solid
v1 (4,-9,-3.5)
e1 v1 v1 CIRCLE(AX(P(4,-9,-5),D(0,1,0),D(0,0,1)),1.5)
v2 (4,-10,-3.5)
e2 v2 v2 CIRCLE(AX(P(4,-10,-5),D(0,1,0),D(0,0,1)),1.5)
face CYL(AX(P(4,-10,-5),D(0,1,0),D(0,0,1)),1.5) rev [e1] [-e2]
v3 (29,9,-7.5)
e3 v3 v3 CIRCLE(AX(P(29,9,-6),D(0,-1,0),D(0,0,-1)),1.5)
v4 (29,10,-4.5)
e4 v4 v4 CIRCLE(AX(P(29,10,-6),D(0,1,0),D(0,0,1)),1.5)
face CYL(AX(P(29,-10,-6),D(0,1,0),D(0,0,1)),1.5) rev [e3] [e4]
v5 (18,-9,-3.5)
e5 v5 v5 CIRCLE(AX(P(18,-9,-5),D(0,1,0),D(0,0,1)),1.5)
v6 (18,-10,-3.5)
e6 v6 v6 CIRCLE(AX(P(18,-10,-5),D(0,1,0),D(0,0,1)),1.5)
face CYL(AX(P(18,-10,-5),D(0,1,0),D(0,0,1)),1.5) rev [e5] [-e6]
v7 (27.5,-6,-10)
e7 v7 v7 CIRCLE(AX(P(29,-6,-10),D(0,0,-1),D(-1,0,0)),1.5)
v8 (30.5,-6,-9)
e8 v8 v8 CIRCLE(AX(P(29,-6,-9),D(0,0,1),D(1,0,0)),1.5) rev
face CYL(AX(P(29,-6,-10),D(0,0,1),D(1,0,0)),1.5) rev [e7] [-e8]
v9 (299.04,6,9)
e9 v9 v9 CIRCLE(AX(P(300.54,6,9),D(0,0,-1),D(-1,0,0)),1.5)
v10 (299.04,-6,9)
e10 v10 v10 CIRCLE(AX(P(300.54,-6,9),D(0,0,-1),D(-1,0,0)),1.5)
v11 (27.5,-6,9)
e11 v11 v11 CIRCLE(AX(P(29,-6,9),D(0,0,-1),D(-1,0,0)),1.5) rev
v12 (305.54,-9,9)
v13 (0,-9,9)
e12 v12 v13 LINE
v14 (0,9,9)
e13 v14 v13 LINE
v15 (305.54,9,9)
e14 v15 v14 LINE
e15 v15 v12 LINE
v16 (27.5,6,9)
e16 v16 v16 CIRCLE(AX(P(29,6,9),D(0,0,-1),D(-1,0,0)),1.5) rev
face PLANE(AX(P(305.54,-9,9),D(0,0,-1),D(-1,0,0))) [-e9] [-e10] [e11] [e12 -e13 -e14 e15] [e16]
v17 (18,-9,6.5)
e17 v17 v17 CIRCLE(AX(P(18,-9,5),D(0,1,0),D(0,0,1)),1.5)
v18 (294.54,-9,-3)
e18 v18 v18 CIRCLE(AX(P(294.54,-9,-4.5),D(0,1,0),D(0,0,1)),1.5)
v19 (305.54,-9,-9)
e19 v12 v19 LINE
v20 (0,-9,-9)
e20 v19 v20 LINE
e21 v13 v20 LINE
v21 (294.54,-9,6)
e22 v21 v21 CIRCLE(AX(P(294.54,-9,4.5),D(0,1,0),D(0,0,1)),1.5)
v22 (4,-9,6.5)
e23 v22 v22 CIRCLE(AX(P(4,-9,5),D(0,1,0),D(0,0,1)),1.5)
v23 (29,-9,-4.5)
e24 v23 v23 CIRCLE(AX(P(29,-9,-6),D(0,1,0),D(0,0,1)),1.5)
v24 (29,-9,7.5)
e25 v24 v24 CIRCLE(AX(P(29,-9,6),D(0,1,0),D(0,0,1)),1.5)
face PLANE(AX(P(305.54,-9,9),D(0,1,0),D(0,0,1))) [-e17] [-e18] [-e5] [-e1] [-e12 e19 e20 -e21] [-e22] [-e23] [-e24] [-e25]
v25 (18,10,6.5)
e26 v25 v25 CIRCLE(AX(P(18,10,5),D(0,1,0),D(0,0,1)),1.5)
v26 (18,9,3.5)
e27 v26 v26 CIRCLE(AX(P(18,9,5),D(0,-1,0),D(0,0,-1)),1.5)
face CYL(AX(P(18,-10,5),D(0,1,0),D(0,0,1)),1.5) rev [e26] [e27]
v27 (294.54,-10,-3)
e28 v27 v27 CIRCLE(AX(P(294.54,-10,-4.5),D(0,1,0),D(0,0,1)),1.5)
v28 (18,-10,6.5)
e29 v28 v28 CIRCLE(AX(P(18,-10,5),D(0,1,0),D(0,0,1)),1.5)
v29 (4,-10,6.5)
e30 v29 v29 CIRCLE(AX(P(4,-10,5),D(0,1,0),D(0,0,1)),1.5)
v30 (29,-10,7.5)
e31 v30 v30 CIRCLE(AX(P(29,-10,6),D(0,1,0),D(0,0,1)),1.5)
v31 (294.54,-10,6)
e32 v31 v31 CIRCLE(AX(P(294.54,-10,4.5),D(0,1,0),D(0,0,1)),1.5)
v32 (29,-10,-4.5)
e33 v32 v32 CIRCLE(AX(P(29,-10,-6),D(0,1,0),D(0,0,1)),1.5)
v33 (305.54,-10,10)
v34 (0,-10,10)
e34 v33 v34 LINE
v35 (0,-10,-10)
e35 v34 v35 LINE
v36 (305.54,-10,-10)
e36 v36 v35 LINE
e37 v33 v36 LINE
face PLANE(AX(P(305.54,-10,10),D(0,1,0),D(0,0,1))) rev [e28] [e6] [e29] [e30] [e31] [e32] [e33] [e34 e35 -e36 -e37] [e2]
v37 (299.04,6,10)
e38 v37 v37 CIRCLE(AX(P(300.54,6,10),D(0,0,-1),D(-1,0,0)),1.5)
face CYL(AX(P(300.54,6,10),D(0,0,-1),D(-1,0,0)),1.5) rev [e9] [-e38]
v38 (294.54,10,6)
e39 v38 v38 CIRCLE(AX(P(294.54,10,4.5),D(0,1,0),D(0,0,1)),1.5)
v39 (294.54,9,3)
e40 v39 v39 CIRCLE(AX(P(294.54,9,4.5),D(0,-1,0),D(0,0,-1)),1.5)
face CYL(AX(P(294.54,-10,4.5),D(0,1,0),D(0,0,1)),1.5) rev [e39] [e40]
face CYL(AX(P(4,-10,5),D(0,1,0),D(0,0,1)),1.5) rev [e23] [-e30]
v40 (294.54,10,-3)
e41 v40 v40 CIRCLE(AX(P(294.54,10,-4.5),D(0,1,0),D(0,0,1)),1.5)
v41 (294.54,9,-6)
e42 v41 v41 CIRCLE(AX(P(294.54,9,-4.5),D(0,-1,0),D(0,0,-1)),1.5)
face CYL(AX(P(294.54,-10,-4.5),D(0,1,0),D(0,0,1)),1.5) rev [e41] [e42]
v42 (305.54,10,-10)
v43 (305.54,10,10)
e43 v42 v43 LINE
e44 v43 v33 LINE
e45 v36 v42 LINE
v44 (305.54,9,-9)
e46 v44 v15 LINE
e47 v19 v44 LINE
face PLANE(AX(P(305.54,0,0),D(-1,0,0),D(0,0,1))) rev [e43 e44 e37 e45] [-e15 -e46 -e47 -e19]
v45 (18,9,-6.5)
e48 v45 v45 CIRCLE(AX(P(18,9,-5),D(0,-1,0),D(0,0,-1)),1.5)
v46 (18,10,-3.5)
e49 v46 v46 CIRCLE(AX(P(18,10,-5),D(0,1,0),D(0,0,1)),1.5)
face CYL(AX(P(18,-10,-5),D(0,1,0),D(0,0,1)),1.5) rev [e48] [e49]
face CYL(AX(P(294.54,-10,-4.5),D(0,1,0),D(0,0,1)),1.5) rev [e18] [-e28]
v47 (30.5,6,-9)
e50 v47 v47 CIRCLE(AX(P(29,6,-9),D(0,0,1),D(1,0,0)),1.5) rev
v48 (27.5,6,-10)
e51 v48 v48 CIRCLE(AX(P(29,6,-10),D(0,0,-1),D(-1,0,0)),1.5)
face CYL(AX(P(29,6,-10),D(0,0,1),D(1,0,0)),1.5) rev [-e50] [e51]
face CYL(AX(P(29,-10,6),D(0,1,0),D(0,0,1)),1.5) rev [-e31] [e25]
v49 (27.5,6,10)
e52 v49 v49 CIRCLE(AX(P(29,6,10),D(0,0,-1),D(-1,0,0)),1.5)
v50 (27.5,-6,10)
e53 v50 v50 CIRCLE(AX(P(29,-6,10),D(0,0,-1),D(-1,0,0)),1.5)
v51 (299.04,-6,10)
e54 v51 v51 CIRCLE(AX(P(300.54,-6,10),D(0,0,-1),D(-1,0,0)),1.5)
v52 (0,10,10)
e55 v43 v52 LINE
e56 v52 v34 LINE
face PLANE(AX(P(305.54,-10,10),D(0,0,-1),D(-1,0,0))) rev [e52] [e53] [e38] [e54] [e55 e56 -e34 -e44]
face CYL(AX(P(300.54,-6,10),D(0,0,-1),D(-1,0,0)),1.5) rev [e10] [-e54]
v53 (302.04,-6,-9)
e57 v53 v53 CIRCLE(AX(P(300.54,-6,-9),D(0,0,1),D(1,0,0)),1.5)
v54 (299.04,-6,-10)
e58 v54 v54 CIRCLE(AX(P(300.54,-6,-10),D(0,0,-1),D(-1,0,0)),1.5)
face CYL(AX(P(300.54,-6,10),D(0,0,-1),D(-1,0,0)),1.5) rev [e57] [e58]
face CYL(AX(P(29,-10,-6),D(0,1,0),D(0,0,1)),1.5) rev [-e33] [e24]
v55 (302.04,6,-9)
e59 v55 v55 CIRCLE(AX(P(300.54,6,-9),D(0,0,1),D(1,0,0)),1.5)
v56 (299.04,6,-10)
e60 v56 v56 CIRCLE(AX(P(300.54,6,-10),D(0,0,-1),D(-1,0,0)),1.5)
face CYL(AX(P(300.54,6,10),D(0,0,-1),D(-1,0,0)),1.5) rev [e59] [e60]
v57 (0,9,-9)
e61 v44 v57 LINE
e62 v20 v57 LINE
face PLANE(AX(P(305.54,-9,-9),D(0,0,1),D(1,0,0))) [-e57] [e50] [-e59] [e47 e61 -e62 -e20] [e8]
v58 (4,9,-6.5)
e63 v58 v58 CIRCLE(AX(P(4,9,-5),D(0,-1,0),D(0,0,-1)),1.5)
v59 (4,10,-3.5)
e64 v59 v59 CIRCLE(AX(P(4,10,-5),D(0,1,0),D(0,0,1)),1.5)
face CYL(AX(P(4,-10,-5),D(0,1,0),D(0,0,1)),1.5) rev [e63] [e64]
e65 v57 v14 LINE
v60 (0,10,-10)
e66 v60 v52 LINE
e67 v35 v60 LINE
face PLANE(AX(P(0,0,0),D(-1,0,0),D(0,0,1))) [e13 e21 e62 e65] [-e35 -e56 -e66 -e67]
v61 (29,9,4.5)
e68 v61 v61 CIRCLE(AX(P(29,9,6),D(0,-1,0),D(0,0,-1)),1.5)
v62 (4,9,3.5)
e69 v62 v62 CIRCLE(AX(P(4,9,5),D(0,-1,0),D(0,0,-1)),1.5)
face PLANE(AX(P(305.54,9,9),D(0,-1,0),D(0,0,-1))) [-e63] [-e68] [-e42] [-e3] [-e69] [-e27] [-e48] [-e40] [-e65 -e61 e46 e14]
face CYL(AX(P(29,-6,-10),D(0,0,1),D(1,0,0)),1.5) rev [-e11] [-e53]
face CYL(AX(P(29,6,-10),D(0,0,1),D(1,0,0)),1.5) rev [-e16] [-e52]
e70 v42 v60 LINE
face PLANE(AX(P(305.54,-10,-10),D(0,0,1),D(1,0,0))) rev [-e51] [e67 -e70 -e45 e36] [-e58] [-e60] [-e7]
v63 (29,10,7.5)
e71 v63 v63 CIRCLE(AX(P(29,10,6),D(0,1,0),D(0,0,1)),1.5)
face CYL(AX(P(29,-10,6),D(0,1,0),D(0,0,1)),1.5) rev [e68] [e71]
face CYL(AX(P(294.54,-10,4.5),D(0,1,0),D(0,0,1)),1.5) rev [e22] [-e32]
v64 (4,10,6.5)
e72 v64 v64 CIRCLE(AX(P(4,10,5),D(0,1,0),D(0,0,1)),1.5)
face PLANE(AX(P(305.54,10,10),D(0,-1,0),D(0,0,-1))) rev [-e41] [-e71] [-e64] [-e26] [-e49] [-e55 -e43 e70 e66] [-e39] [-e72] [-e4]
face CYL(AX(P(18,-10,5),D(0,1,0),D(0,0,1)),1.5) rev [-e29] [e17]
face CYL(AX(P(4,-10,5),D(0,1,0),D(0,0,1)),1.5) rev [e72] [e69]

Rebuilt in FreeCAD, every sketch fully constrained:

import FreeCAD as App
import Part
import Sketcher
from FreeCAD import Vector
Q = App.Units.Quantity


def add_polygon(sketch, points):
    """Adds a closed chain of lines whose ends are joined by coincident constraints."""
    first, n = sketch.GeometryCount, len(points)
    for a, b in zip(points, points[1:] + points[:1]):
        sketch.addGeometry(Part.LineSegment(App.Vector(*a, 0), App.Vector(*b, 0)), False)
    for i in range(n):
        sketch.addConstraint(Sketcher.Constraint("Coincident", first + i, 2, first + (i + 1) % n, 1))

doc = App.newDocument("Part")
body = doc.addObject("PartDesign::Body", "Body")

# Sketch on YZ plane
sketch1 = body.newObject("Sketcher::SketchObject", "Sketch")
sketch1.AttachmentSupport = (doc.getObject("YZ_Plane"), [""])
sketch1.MapMode = "FlatFace"
add_polygon(sketch1, [(10, 10), (-10, 10), (-10, -10), (10, -10)])  # lines 0-3
add_polygon(sketch1, [(-9, -9), (-9, 9), (9, 9), (9, -9)])  # lines 4-7
sketch1.addConstraint([
    Sketcher.Constraint("Horizontal", 0),
    Sketcher.Constraint("Vertical", 1),
    Sketcher.Constraint("Horizontal", 2),
    Sketcher.Constraint("Vertical", 3),
    Sketcher.Constraint("Vertical", 4),
    Sketcher.Constraint("Horizontal", 5),
    Sketcher.Constraint("Vertical", 6),
    Sketcher.Constraint("Horizontal", 7),
    Sketcher.Constraint("Symmetric", 0, 2, 2, 2, -1, 1),
    Sketcher.Constraint("Symmetric", 4, 2, 6, 2, -1, 1),
    Sketcher.Constraint("Equal", 2, 1),
    Sketcher.Constraint("Equal", 7, 4),
    Sketcher.Constraint("DistanceX", 0, 2, 0, 1, Q("20 mm")),
    Sketcher.Constraint("DistanceX", 5, 1, 5, 2, Q("18 mm")),
])
pad1 = body.newObject("PartDesign::Pad", "Pad")
pad1.Profile = sketch1
pad1.Length = 305.54

# Sketch on XY plane
sketch2 = body.newObject("Sketcher::SketchObject", "Sketch001")
sketch2.AttachmentSupport = (doc.getObject("XY_Plane"), [""])
sketch2.MapMode = "FlatFace"
sketch2.AttachmentOffset = App.Placement(Vector(0, 0, 10), App.Rotation())
sketch2.addGeometry([
    Part.Circle(Vector(29, 6, 0), Vector(0, 0, 1), 1.5),
    Part.Circle(Vector(29, -6, 0), Vector(0, 0, 1), 1.5),
], False)
sketch2.addConstraint([
    Sketcher.Constraint("Equal", 0, 1),
    Sketcher.Constraint("Symmetric", 0, 3, 1, 3, -1),
    Sketcher.Constraint("Diameter", 0, Q("3 mm")),
    Sketcher.Constraint("DistanceX", -1, 1, 0, 3, Q("29 mm")),
    Sketcher.Constraint("DistanceY", -1, 1, 0, 3, Q("6 mm")),
])
pocket1 = body.newObject("PartDesign::Pocket", "Pocket")
pocket1.Profile = sketch2
pocket1.Type = "ThroughAll"

# Sketch on XZ plane
sketch3 = body.newObject("Sketcher::SketchObject", "Sketch002")
sketch3.AttachmentSupport = (doc.getObject("XZ_Plane"), [""])
sketch3.MapMode = "FlatFace"
sketch3.AttachmentOffset = App.Placement(Vector(0, 0, -10), App.Rotation())
sketch3.addGeometry([
    Part.Circle(Vector(29, -6, 0), Vector(0, 0, 1), 1.5),
    Part.Circle(Vector(29, 6, 0), Vector(0, 0, 1), 1.5),
], False)
sketch3.addConstraint([
    Sketcher.Constraint("Equal", 0, 1),
    Sketcher.Constraint("Symmetric", 0, 3, 1, 3, -1),
    Sketcher.Constraint("Diameter", 0, Q("3 mm")),
    Sketcher.Constraint("DistanceX", -1, 1, 0, 3, Q("29 mm")),
    Sketcher.Constraint("DistanceY", 0, 3, -1, 1, Q("6 mm")),
])
pocket2 = body.newObject("PartDesign::Pocket", "Pocket001")
pocket2.Profile = sketch3
pocket2.Type = "ThroughAll"
pocket2.Reversed = True

# Sketch on XZ plane
sketch4 = body.newObject("Sketcher::SketchObject", "Sketch003")
sketch4.AttachmentSupport = (doc.getObject("XZ_Plane"), [""])
sketch4.MapMode = "FlatFace"
sketch4.AttachmentOffset = App.Placement(Vector(0, 0, -10), App.Rotation())
sketch4.addGeometry([
    Part.Circle(Vector(294.5, -4.5, 0), Vector(0, 0, 1), 1.5),
    Part.Circle(Vector(294.5, 4.5, 0), Vector(0, 0, 1), 1.5),
], False)
sketch4.addConstraint([
    Sketcher.Constraint("Equal", 0, 1),
    Sketcher.Constraint("Symmetric", 0, 3, 1, 3, -1),
    Sketcher.Constraint("Diameter", 0, Q("3 mm")),
    Sketcher.Constraint("DistanceY", 0, 3, 1, 3, Q("9 mm")),
    Sketcher.Constraint("DistanceX", -1, 1, 0, 3, Q("294.54 mm")),
])
pocket3 = body.newObject("PartDesign::Pocket", "Pocket002")
pocket3.Profile = sketch4
pocket3.Length = 20
pocket3.Reversed = True

# Sketch on XY plane
sketch5 = body.newObject("Sketcher::SketchObject", "Sketch004")
sketch5.AttachmentSupport = (doc.getObject("XY_Plane"), [""])
sketch5.MapMode = "FlatFace"
sketch5.AttachmentOffset = App.Placement(Vector(0, 0, -10), App.Rotation())
sketch5.addGeometry([
    Part.Circle(Vector(300.5, 6, 0), Vector(0, 0, 1), 1.5),
    Part.Circle(Vector(300.5, -6, 0), Vector(0, 0, 1), 1.5),
], False)
sketch5.addConstraint([
    Sketcher.Constraint("Equal", 0, 1),
    Sketcher.Constraint("Symmetric", 0, 3, 1, 3, -1),
    Sketcher.Constraint("Diameter", 0, Q("3 mm")),
    Sketcher.Constraint("DistanceY", -1, 1, 0, 3, Q("6 mm")),
    Sketcher.Constraint("DistanceX", -1, 1, 0, 3, Q("300.54 mm")),
])
pocket4 = body.newObject("PartDesign::Pocket", "Pocket003")
pocket4.Profile = sketch5
pocket4.Length = 20
pocket4.Reversed = True

# Sketch on XZ plane
sketch6 = body.newObject("Sketcher::SketchObject", "Sketch005")
sketch6.AttachmentSupport = (doc.getObject("XZ_Plane"), [""])
sketch6.MapMode = "FlatFace"
sketch6.AttachmentOffset = App.Placement(Vector(0, 0, -10), App.Rotation())
sketch6.addGeometry([
    Part.Circle(Vector(4, -5, 0), Vector(0, 0, 1), 1.5),
    Part.Circle(Vector(4, 5, 0), Vector(0, 0, 1), 1.5),
    Part.Circle(Vector(18, -5, 0), Vector(0, 0, 1), 1.5),
    Part.Circle(Vector(18, 5, 0), Vector(0, 0, 1), 1.5),
], False)
sketch6.addConstraint([
    Sketcher.Constraint("Equal", 0, 1),
    Sketcher.Constraint("Equal", 1, 2),
    Sketcher.Constraint("Equal", 2, 3),
    Sketcher.Constraint("Symmetric", 0, 3, 1, 3, -1),
    Sketcher.Constraint("Symmetric", 2, 3, 3, 3, -1),
    Sketcher.Constraint("Horizontal", 0, 3, 2, 3),
    Sketcher.Constraint("Diameter", 0, Q("3 mm")),
    Sketcher.Constraint("DistanceX", -1, 1, 0, 3, Q("4 mm")),
    Sketcher.Constraint("DistanceY", 0, 3, -1, 1, Q("5 mm")),
    Sketcher.Constraint("DistanceX", -1, 1, 2, 3, Q("18 mm")),
])
pocket5 = body.newObject("PartDesign::Pocket", "Pocket004")
pocket5.Profile = sketch6
pocket5.Length = 20
pocket5.Reversed = True

doc.recompute()
